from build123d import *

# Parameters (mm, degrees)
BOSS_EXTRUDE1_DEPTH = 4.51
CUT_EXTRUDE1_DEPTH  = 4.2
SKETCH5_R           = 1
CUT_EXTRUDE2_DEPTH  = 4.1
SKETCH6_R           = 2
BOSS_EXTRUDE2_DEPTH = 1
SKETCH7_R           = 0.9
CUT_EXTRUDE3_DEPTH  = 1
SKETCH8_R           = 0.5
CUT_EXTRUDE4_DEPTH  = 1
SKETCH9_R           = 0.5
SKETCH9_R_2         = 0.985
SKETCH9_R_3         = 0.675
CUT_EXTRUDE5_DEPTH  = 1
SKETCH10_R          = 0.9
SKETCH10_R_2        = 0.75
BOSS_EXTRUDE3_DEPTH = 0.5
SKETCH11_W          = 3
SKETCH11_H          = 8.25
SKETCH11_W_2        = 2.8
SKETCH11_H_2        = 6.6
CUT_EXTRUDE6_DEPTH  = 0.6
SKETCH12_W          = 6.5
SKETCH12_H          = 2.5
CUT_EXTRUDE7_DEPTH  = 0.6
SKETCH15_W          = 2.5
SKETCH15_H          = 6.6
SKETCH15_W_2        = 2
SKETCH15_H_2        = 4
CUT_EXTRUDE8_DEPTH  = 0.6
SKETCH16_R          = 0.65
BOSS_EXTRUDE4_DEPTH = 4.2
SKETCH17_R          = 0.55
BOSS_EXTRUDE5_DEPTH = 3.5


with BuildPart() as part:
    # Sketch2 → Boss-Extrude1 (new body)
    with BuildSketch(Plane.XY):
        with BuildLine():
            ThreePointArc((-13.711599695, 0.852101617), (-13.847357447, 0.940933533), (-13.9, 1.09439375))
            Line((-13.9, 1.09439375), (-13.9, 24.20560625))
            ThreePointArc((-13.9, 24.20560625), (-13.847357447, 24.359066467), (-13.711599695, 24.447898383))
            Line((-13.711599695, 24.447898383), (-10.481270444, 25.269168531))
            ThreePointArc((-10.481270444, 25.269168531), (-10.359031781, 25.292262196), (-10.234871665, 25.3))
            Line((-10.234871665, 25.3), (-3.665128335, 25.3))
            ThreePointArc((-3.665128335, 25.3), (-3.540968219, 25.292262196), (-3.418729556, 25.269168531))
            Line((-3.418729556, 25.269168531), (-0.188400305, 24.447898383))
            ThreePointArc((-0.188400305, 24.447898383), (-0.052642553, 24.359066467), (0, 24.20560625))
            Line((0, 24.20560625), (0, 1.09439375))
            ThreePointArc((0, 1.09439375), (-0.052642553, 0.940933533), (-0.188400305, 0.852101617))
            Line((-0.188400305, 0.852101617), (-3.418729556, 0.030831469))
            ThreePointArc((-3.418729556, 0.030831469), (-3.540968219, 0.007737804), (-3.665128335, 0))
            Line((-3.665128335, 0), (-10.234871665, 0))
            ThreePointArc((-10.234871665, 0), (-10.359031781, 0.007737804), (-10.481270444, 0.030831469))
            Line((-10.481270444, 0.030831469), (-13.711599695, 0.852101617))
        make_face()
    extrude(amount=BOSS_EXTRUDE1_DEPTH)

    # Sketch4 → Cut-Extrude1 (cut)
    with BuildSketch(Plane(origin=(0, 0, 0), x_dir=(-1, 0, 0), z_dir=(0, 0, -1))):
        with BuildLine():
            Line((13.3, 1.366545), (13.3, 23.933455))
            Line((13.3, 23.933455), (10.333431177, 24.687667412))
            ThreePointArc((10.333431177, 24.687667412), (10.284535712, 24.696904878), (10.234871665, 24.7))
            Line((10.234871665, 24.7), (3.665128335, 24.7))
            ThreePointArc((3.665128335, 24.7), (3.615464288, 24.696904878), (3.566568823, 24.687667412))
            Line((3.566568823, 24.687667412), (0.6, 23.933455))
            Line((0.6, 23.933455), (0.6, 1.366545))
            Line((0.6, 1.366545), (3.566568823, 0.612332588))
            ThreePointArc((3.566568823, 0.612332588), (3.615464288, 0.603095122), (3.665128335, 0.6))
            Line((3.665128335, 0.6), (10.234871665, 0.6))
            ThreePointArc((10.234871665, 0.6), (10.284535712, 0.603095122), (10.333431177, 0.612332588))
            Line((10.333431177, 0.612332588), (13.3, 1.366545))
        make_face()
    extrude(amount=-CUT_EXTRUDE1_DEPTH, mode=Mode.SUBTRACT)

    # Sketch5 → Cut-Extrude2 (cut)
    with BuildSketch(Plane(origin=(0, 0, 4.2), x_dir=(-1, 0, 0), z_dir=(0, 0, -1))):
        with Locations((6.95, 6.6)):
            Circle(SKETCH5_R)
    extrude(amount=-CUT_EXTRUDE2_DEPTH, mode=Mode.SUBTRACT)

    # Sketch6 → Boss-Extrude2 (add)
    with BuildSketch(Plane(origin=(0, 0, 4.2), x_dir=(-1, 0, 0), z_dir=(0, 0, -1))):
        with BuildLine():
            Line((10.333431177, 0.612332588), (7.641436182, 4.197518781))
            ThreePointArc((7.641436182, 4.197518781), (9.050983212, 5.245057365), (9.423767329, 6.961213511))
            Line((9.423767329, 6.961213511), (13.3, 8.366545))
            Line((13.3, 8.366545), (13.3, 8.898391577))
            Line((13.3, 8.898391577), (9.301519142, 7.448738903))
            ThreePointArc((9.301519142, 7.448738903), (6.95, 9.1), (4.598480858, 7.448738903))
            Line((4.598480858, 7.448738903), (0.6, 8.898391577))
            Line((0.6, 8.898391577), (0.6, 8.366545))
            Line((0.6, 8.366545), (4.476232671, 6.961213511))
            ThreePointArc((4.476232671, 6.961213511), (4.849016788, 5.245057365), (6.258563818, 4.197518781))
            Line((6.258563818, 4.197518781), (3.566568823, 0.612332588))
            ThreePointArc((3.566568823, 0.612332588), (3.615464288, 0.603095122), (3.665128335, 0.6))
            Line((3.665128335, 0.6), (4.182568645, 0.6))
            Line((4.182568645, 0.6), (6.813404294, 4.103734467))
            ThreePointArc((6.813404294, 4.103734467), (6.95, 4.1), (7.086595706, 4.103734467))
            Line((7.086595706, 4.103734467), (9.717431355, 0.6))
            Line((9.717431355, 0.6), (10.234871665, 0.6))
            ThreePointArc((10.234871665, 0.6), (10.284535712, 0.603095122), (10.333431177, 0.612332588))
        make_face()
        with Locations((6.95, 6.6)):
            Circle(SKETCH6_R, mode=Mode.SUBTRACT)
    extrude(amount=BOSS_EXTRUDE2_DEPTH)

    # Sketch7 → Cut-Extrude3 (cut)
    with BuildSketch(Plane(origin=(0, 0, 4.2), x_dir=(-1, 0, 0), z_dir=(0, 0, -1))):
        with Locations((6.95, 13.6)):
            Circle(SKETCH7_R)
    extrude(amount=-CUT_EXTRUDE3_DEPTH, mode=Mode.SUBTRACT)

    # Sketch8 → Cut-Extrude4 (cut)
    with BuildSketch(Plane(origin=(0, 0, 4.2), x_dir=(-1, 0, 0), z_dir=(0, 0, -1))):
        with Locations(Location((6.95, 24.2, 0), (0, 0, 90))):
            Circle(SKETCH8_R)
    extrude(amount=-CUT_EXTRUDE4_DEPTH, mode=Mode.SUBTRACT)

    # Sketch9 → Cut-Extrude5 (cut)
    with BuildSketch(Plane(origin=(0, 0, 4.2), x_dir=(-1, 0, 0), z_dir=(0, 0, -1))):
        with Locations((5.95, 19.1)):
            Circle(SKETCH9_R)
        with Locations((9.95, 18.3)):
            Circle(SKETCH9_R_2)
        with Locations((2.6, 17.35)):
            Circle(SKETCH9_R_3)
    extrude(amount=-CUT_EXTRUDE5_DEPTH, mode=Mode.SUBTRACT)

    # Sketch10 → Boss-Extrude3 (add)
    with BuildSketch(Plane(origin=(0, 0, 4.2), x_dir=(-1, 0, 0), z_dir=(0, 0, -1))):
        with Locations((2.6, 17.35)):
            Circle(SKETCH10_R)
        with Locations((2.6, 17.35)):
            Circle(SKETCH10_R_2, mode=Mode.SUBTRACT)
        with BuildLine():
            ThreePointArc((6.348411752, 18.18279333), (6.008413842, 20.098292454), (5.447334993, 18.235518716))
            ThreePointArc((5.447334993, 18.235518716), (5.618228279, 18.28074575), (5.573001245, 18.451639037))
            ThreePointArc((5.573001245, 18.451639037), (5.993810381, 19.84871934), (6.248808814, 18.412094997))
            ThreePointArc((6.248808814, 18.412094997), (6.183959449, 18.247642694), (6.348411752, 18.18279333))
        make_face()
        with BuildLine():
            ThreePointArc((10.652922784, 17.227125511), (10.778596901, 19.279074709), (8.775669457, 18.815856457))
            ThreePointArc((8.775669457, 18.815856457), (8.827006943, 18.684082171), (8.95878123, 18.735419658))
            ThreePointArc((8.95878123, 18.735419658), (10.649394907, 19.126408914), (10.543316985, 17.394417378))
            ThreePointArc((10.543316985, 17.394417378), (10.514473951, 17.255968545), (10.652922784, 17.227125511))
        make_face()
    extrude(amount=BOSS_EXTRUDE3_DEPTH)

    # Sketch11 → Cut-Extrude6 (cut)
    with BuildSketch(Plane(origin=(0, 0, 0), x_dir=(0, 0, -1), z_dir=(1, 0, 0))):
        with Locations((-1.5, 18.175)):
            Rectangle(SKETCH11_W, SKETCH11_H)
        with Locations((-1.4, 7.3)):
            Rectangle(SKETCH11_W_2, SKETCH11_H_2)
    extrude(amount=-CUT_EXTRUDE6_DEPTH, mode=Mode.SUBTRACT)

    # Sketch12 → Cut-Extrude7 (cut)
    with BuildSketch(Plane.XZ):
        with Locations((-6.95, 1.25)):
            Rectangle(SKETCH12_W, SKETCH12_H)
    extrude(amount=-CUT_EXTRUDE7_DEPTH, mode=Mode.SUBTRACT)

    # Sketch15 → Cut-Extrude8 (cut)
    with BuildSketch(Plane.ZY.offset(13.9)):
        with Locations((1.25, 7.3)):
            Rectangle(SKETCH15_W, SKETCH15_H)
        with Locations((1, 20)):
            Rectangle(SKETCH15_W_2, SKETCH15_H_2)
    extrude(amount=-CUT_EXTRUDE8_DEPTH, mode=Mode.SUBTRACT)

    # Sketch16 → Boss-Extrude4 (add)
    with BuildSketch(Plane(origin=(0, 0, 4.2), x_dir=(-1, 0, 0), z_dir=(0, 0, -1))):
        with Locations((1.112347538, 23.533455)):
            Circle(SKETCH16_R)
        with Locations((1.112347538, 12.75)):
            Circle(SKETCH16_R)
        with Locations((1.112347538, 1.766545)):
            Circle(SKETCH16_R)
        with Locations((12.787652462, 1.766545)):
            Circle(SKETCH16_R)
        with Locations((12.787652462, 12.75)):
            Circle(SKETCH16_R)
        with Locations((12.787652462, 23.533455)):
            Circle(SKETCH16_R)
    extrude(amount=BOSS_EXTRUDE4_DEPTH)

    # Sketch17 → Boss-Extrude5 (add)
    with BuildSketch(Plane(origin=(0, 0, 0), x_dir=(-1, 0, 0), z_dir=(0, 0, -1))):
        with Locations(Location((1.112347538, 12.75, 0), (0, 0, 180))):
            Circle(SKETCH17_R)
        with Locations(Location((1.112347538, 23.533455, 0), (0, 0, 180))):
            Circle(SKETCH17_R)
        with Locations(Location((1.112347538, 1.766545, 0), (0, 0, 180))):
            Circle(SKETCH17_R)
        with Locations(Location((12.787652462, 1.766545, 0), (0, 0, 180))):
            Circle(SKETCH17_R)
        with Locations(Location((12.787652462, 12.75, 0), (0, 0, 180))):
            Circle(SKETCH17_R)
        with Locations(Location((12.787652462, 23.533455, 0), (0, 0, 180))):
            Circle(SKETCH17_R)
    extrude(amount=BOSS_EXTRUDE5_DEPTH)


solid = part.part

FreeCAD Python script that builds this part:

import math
import FreeCAD as App
import Part
import Sketcher

V = App.Vector
Q = App.Units.Quantity


def add_polygon(sketch, points):
    """Adds a closed chain of lines whose ends are joined by coincident constraints."""
    first, n = sketch.GeometryCount, len(points)
    for a, b in zip(points, points[1:] + points[:1]):
        sketch.addGeometry(Part.LineSegment(App.Vector(*a, 0), App.Vector(*b, 0)), False)
    for i in range(n):
        sketch.addConstraint(Sketcher.Constraint("Coincident", first + i, 2, first + (i + 1) % n, 1))

doc = App.newDocument("Part")
params = doc.addObject("Spreadsheet::Sheet", "Params")
for row, (alias, value) in enumerate([
    ("sketch1_radius", "1 mm"),
    ("sketch1_radius2", "0.25 mm"),
    ("pad1_length", "4.51 mm"),
    ("sketch2_radius", "0.4 mm"),
    ("pocket1_length", "4.2 mm"),
    ("sketch3_diameter", "2 mm"),
    ("pocket2_length", "4.1 mm"),
    ("sketch4_diameter", "4 mm"),
    ("sketch4_radius", "2.5 mm"),
    ("sketch4_radius2", "0.4 mm"),
    ("pad2_length", "1 mm"),
    ("sketch5_diameter", "1.8 mm"),
    ("pocket3_length", "1 mm"),
    ("sketch6_diameter", "1 mm"),
    ("pocket4_length", "1 mm"),
    ("sketch7_diameter", "1 mm"),
    ("sketch7_diameter2", "1.97 mm"),
    ("sketch7_diameter3", "1.35 mm"),
    ("pocket5_length", "1 mm"),
    ("sketch8_radius", "1 mm"),
    ("sketch8_diameter", "1.8 mm"),
    ("sketch8_diameter2", "1.5 mm"),
    ("sketch8_radius2", "0.1 mm"),
    ("pad3_length", "0.5 mm"),
    ("sketch9_height", "3 mm"),
    ("sketch9_width", "6.6 mm"),
    ("sketch9_height2", "2.8 mm"),
    ("sketch9_width2", "8.25 mm"),
    ("pocket6_length", "0.6 mm"),
    ("sketch10_width", "6.5 mm"),
    ("sketch10_height", "2.5 mm"),
    ("pocket7_length", "0.6 mm"),
    ("sketch11_width", "4 mm"),
    ("sketch11_height", "2 mm"),
    ("sketch11_width2", "6.6 mm"),
    ("sketch11_height2", "2.5 mm"),
    ("pocket8_length", "0.6 mm"),
    ("sketch12_diameter", "1.3 mm"),
    ("pad4_length", "4.2 mm"),
    ("sketch13_diameter", "1.1 mm"),
    ("pad5_length", "3.5 mm"),
], start=1):
    params.set(f"A{row}", alias)
    params.set(f"B{row}", "=" + value)
    params.setAlias(f"B{row}", alias)

body = doc.addObject("PartDesign::Body", "Body")

# Sketch on XY plane
sketch1 = body.newObject("Sketcher::SketchObject", "Sketch")
sketch1.AttachmentSupport = (doc.getObject("XY_Plane"), [""])
sketch1.MapMode = "FlatFace"
sketch1.addGeometry([
    Part.ArcOfCircle(Part.Circle(V(-13.65, 1.09, 0), V(0, 0, 1), 0.25), math.radians(180), math.radians(256)),  # 0
    Part.LineSegment(V(-13.71, 0.85, 0), V(-10.48, 0.03, 0)),  # 1
    Part.ArcOfCircle(Part.Circle(V(-10.23, 1, 0), V(0, 0, 1), 1), math.radians(-104.26), math.radians(-90)),  # 2
    Part.LineSegment(V(-10.23, 0, 0), V(-3.67, 0, 0)),  # 3
    Part.ArcOfCircle(Part.Circle(V(-3.67, 1, 0), V(0, 0, 1), 1), math.radians(-90), math.radians(-75.74)),  # 4
    Part.LineSegment(V(-3.42, 0.03, 0), V(-0.19, 0.85, 0)),  # 5
    Part.ArcOfCircle(Part.Circle(V(-0.25, 1.09, 0), V(0, 0, 1), 0.25), math.radians(-76), math.radians(0)),  # 6
    Part.LineSegment(V(0, 1.09, 0), V(0, 24.21, 0)),  # 7
    Part.ArcOfCircle(Part.Circle(V(-0.25, 24.21, 0), V(0, 0, 1), 0.25), math.radians(0), math.radians(76)),  # 8
    Part.LineSegment(V(-0.19, 24.45, 0), V(-3.42, 25.27, 0)),  # 9
    Part.ArcOfCircle(Part.Circle(V(-3.67, 24.3, 0), V(0, 0, 1), 1), math.radians(75.74), math.radians(90)),  # 10
    Part.LineSegment(V(-3.67, 25.3, 0), V(-10.23, 25.3, 0)),  # 11
    Part.ArcOfCircle(Part.Circle(V(-10.23, 24.3, 0), V(0, 0, 1), 1), math.radians(90), math.radians(104.26)),  # 12
    Part.LineSegment(V(-10.48, 25.27, 0), V(-13.71, 24.45, 0)),  # 13
    Part.ArcOfCircle(Part.Circle(V(-13.65, 24.21, 0), V(0, 0, 1), 0.25), math.radians(104), math.radians(180)),  # 14
    Part.LineSegment(V(-13.9, 24.21, 0), V(-13.9, 1.09, 0)),  # 15
], False)
sketch1.addConstraint([
    Sketcher.Constraint("Tangent", 0, 2, 1, 1),
    Sketcher.Constraint("Tangent", 1, 2, 2, 1),
    Sketcher.Constraint("Tangent", 2, 2, 3, 1),
    Sketcher.Constraint("Tangent", 3, 2, 4, 1),
    Sketcher.Constraint("Tangent", 4, 2, 5, 1),
    Sketcher.Constraint("Tangent", 5, 2, 6, 1),
    Sketcher.Constraint("Tangent", 6, 2, 7, 1),
    Sketcher.Constraint("Tangent", 7, 2, 8, 1),
    Sketcher.Constraint("Tangent", 8, 2, 9, 1),
    Sketcher.Constraint("Tangent", 9, 2, 10, 1),
    Sketcher.Constraint("Tangent", 10, 2, 11, 1),
    Sketcher.Constraint("Tangent", 11, 2, 12, 1),
    Sketcher.Constraint("Tangent", 12, 2, 13, 1),
    Sketcher.Constraint("Tangent", 13, 2, 14, 1),
    Sketcher.Constraint("Tangent", 14, 2, 15, 1),
    Sketcher.Constraint("Tangent", 15, 2, 0, 1),
    Sketcher.Constraint("Horizontal", 3),
    Sketcher.Constraint("Vertical", 7),
    Sketcher.Constraint("Horizontal", 11),
    Sketcher.Constraint("Vertical", 15),
    Sketcher.Constraint("Equal", 2, 4),
    Sketcher.Constraint("Equal", 0, 6),
    Sketcher.Constraint("Equal", 6, 8),
    Sketcher.Constraint("Equal", 4, 10),
    Sketcher.Constraint("Equal", 10, 12),
    Sketcher.Constraint("Equal", 8, 14),
    Sketcher.Constraint("PointOnObject", 2, 2, -1),
    Sketcher.Constraint("PointOnObject", 6, 2, -2),
    Sketcher.Constraint("Parallel", 1, 9),
    Sketcher.Constraint("Parallel", 5, 13),
    Sketcher.Constraint("Horizontal", 0, 3, 6, 3),
    Sketcher.Constraint("Horizontal", 8, 3, 14, 3),
    Sketcher.Constraint("Horizontal", 1, 2, 4, 2),
    Sketcher.Constraint("Vertical", 4, 3, 10, 3),
    Sketcher.Constraint("Radius", 2, Q("1 mm")),
    Sketcher.Constraint("Radius", 0, Q("0.25 mm")),
    Sketcher.Constraint("DistanceY", -1, 1, 10, 3, Q("24.3 mm")),
    Sketcher.Constraint("DistanceX", 14, 2, -1, 1, Q("13.9 mm")),
    Sketcher.Constraint("DistanceX", 0, 2, -1, 1, Q("13.7116 mm")),
    Sketcher.Constraint("DistanceY", -1, 1, 0, 2, Q("0.852102 mm")),
])
sketch1.setExpression("Constraints[34]", "Params.sketch1_radius")
sketch1.setExpression("Constraints[35]", "Params.sketch1_radius2")
pad1 = body.newObject("PartDesign::Pad", "Pad")
pad1.Profile = sketch1
pad1.setExpression("Length", "Params.pad1_length")

# Sketch on XY plane
sketch2 = body.newObject("Sketcher::SketchObject", "Sketch001")
sketch2.AttachmentSupport = (doc.getObject("XY_Plane"), [""])
sketch2.MapMode = "FlatFace"
sketch2.addGeometry([
    Part.LineSegment(V(-13.3, 1.37, 0), V(-13.3, 23.93, 0)),  # 0
    Part.LineSegment(V(-13.3, 23.93, 0), V(-10.33, 24.69, 0)),  # 1
    Part.ArcOfCircle(Part.Circle(V(-10.23, 24.3, 0), V(0, 0, 1), 0.4), math.radians(90), math.radians(104.26)),  # 2
    Part.LineSegment(V(-10.23, 24.7, 0), V(-3.67, 24.7, 0)),  # 3
    Part.ArcOfCircle(Part.Circle(V(-3.67, 24.3, 0), V(0, 0, 1), 0.4), math.radians(75.74), math.radians(90)),  # 4
    Part.LineSegment(V(-3.57, 24.69, 0), V(-0.6, 23.93, 0)),  # 5
    Part.LineSegment(V(-0.6, 23.93, 0), V(-0.6, 1.37, 0)),  # 6
    Part.LineSegment(V(-0.6, 1.37, 0), V(-3.57, 0.61, 0)),  # 7
    Part.ArcOfCircle(Part.Circle(V(-3.67, 1, 0), V(0, 0, 1), 0.4), math.radians(-90), math.radians(-75.74)),  # 8
    Part.LineSegment(V(-3.67, 0.6, 0), V(-10.23, 0.6, 0)),  # 9
    Part.ArcOfCircle(Part.Circle(V(-10.23, 1, 0), V(0, 0, 1), 0.4), math.radians(-104.26), math.radians(-90)),  # 10
    Part.LineSegment(V(-10.33, 0.61, 0), V(-13.3, 1.37, 0)),  # 11
], False)
sketch2.addConstraint([
    Sketcher.Constraint("Coincident", 0, 2, 1, 1),
    Sketcher.Constraint("Tangent", 1, 2, 2, 2),
    Sketcher.Constraint("Tangent", 2, 1, 3, 1),
    Sketcher.Constraint("Tangent", 3, 2, 4, 2),
    Sketcher.Constraint("Tangent", 4, 1, 5, 1),
    Sketcher.Constraint("Coincident", 5, 2, 6, 1),
    Sketcher.Constraint("Coincident", 6, 2, 7, 1),
    Sketcher.Constraint("Tangent", 7, 2, 8, 2),
    Sketcher.Constraint("Tangent", 8, 1, 9, 1),
    Sketcher.Constraint("Tangent", 9, 2, 10, 2),
    Sketcher.Constraint("Tangent", 10, 1, 11, 1),
    Sketcher.Constraint("Coincident", 11, 2, 0, 1),
    Sketcher.Constraint("Vertical", 0),
    Sketcher.Constraint("Horizontal", 3),
    Sketcher.Constraint("Vertical", 6),
    Sketcher.Constraint("Horizontal", 9),
    Sketcher.Constraint("Equal", 2, 4),
    Sketcher.Constraint("Equal", 4, 8),
    Sketcher.Constraint("Equal", 8, 10),
    Sketcher.Constraint("Parallel", 1, 7),
    Sketcher.Constraint("Parallel", 5, 11),
    Sketcher.Constraint("Horizontal", 1, 2, 4, 1),
    Sketcher.Constraint("Horizontal", 0, 2, 5, 2),
    Sketcher.Constraint("Horizontal", 6, 2, 11, 2),
    Sketcher.Constraint("Vertical", 4, 3, 8, 3),
    Sketcher.Constraint("Radius", 2, Q("0.4 mm")),
    Sketcher.Constraint("DistanceY", -1, 1, 8, 3, Q("1 mm")),
    Sketcher.Constraint("DistanceY", -1, 1, 2, 3, Q("24.3 mm")),
    Sketcher.Constraint("DistanceX", 0, 2, -1, 1, Q("13.3 mm")),
    Sketcher.Constraint("DistanceX", 5, 2, -1, 1, Q("0.6 mm")),
    Sketcher.Constraint("DistanceY", 0, 1, 0, 2, Q("22.56691 mm")),
    Sketcher.Constraint("DistanceX", 3, 1, 3, 2, Q("6.569743 mm")),
])
sketch2.setExpression("Constraints[25]", "Params.sketch2_radius")
pocket1 = body.newObject("PartDesign::Pocket", "Pocket")
pocket1.Profile = sketch2
pocket1.setExpression("Length", "Params.pocket1_length")
pocket1.Reversed = True

# Sketch on XY plane
sketch3 = body.newObject("Sketcher::SketchObject", "Sketch002")
sketch3.AttachmentSupport = (doc.getObject("XY_Plane"), [""])
sketch3.MapMode = "FlatFace"
sketch3.AttachmentOffset = App.Placement(V(0, 0, 4.2), App.Rotation())
sketch3.addGeometry(Part.Circle(V(-7, 6.6, 0), V(0, 0, 1), 1), False)
sketch3.addConstraint([
    Sketcher.Constraint("Diameter", 0, Q("2 mm")),
    Sketcher.Constraint("DistanceY", -1, 1, 0, 3, Q("6.6 mm")),
    Sketcher.Constraint("DistanceX", 0, 3, -1, 1, Q("6.95 mm")),
])
sketch3.setExpression("Constraints[0]", "Params.sketch3_diameter")
pocket2 = body.newObject("PartDesign::Pocket", "Pocket001")
pocket2.Profile = sketch3
pocket2.setExpression("Length", "Params.pocket2_length")
pocket2.Reversed = True

# Sketch on XY plane
sketch4 = body.newObject("Sketcher::SketchObject", "Sketch003")
sketch4.AttachmentSupport = (doc.getObject("XY_Plane"), [""])
sketch4.MapMode = "FlatFace"
sketch4.AttachmentOffset = App.Placement(V(0, 0, 4.2), App.Rotation())
sketch4.addGeometry([
    Part.LineSegment(V(-10.33, 0.61, 0), V(-7.64, 4.2, 0)),  # 0
    Part.ArcOfCircle(Part.Circle(V(-6.95, 6.6, 0), V(0, 0, 1), 2.5), math.radians(172), math.radians(254)),  # 1
    Part.LineSegment(V(-9.42, 6.96, 0), V(-13.3, 8.37, 0)),  # 2
    Part.LineSegment(V(-13.3, 8.37, 0), V(-13.3, 8.9, 0)),  # 3
    Part.LineSegment(V(-13.3, 8.9, 0), V(-9.3, 7.45, 0)),  # 4
    Part.ArcOfCircle(Part.Circle(V(-6.95, 6.6, 0), V(0, 0, 1), 2.5), math.radians(20), math.radians(160)),  # 5
    Part.LineSegment(V(-4.6, 7.45, 0), V(-0.6, 8.9, 0)),  # 6
    Part.LineSegment(V(-0.6, 8.9, 0), V(-0.6, 8.37, 0)),  # 7
    Part.LineSegment(V(-0.6, 8.37, 0), V(-4.48, 6.96, 0)),  # 8
    Part.ArcOfCircle(Part.Circle(V(-6.95, 6.6, 0), V(0, 0, 1), 2.5), math.radians(-74), math.radians(8)),  # 9
    Part.LineSegment(V(-6.26, 4.2, 0), V(-3.57, 0.61, 0)),  # 10
    Part.ArcOfCircle(Part.Circle(V(-3.67, 1, 0), V(0, 0, 1), 0.4), math.radians(-90), math.radians(-75.74)),  # 11
    Part.LineSegment(V(-3.67, 0.6, 0), V(-4.18, 0.6, 0)),  # 12
    Part.LineSegment(V(-4.18, 0.6, 0), V(-6.81, 4.1, 0)),  # 13
    Part.ArcOfCircle(Part.Circle(V(-6.95, 6.6, 0), V(0, 0, 1), 2.5), math.radians(-93.13), math.radians(-86.87)),  # 14
    Part.LineSegment(V(-7.09, 4.1, 0), V(-9.72, 0.6, 0)),  # 15
    Part.LineSegment(V(-9.72, 0.6, 0), V(-10.23, 0.6, 0)),  # 16
    Part.ArcOfCircle(Part.Circle(V(-10.23, 1, 0), V(0, 0, 1), 0.4), math.radians(-104.26), math.radians(-90)),  # 17
    Part.Circle(V(-6.95, 6.6, 0), V(0, 0, 1), 2),  # 18
], False)
sketch4.addConstraint([
    Sketcher.Constraint("Coincident", 0, 2, 1, 2),
    Sketcher.Constraint("Coincident", 1, 1, 2, 1),
    Sketcher.Constraint("Coincident", 2, 2, 3, 1),
    Sketcher.Constraint("Coincident", 3, 2, 4, 1),
    Sketcher.Constraint("Coincident", 4, 2, 5, 2),
    Sketcher.Constraint("Coincident", 5, 1, 6, 1),
    Sketcher.Constraint("Coincident", 6, 2, 7, 1),
    Sketcher.Constraint("Coincident", 7, 2, 8, 1),
    Sketcher.Constraint("Coincident", 8, 2, 9, 2),
    Sketcher.Constraint("Coincident", 9, 1, 10, 1),
    Sketcher.Constraint("Coincident", 10, 2, 11, 2),
    Sketcher.Constraint("Tangent", 11, 1, 12, 1),
    Sketcher.Constraint("Coincident", 12, 2, 13, 1),
    Sketcher.Constraint("Coincident", 13, 2, 14, 2),
    Sketcher.Constraint("Coincident", 14, 1, 15, 1),
    Sketcher.Constraint("Coincident", 15, 2, 16, 1),
    Sketcher.Constraint("Tangent", 16, 2, 17, 2),
    Sketcher.Constraint("Coincident", 17, 1, 0, 1),
    Sketcher.Constraint("Vertical", 3),
    Sketcher.Constraint("Vertical", 7),
    Sketcher.Constraint("Horizontal", 12),
    Sketcher.Constraint("Horizontal", 16),
    Sketcher.Constraint("Coincident", 5, 3, 1, 3),
    Sketcher.Constraint("Coincident", 9, 3, 1, 3),
    Sketcher.Constraint("Coincident", 14, 3, 1, 3),
    Sketcher.Constraint("Coincident", 18, 3, 1, 3),
    Sketcher.Constraint("Equal", 1, 5),
    Sketcher.Constraint("Equal", 5, 9),
    Sketcher.Constraint("Equal", 9, 14),
    Sketcher.Constraint("Equal", 11, 17),
    Sketcher.Constraint("Parallel", 2, 4),
    Sketcher.Constraint("Parallel", 6, 8),
    Sketcher.Constraint("Parallel", 10, 13),
    Sketcher.Constraint("Parallel", 0, 15),
    Sketcher.Constraint("Horizontal", 11, 3, 17, 3),
    Sketcher.Constraint("Horizontal", 4, 2, 5, 1),
    Sketcher.Constraint("Horizontal", 3, 2, 6, 2),
    Sketcher.Constraint("Horizontal", 2, 2, 7, 2),
    Sketcher.Constraint("Horizontal", 1, 1, 8, 2),
    Sketcher.Constraint("Horizontal", 0, 2, 9, 1),
    Sketcher.Constraint("Horizontal", 13, 2, 14, 1),
    Sketcher.Constraint("Horizontal", 10, 2, 17, 1),
    Sketcher.Constraint("Equal", 12, 16),
    Sketcher.Constraint("Diameter", 18, Q("4 mm")),
    Sketcher.Constraint("Radius", 1, Q("2.5 mm")),
    Sketcher.Constraint("Radius", 11, Q("0.4 mm")),
    Sketcher.Constraint("DistanceY", -1, 1, 11, 3, Q("1 mm")),
    Sketcher.Constraint("DistanceY", -1, 1, 1, 3, Q("6.6 mm")),
    Sketcher.Constraint("DistanceX", 2, 2, -1, 1, Q("13.3 mm")),
    Sketcher.Constraint("DistanceX", 6, 2, -1, 1, Q("0.6 mm")),
    Sketcher.Constraint("DistanceX", 12, 2, 10, 2, Q("0.616 mm")),
    Sketcher.Constraint("DistanceX", 12, 2, 12, 1, Q("0.51744 mm")),
    Sketcher.Constraint("DistanceY", 17, 1, 14, 1, Q("3.491402 mm")),
    Sketcher.Constraint("Distance", 13, Q("4.38149 mm")),
    Sketcher.Constraint("DistanceY", 3, 1, 3, 2, Q("0.531847 mm")),
    Sketcher.Constraint("DistanceY", -1, 1, 3, 2, Q("8.898392 mm")),
    Sketcher.Constraint("DistanceX", 4, 2, -1, 1, Q("9.301519 mm")),
])
sketch4.setExpression("Constraints[43]", "Params.sketch4_diameter")
sketch4.setExpression("Constraints[44]", "Params.sketch4_radius")
sketch4.setExpression("Constraints[45]", "Params.sketch4_radius2")
pad2 = body.newObject("PartDesign::Pad", "Pad001")
pad2.Profile = sketch4
pad2.setExpression("Length", "Params.pad2_length")
pad2.Reversed = True

# Sketch on XY plane
sketch5 = body.newObject("Sketcher::SketchObject", "Sketch004")
sketch5.AttachmentSupport = (doc.getObject("XY_Plane"), [""])
sketch5.MapMode = "FlatFace"
sketch5.AttachmentOffset = App.Placement(V(0, 0, 4.2), App.Rotation())
sketch5.addGeometry(Part.Circle(V(-7, 13.6, 0), V(0, 0, 1), 0.9), False)
sketch5.addConstraint([
    Sketcher.Constraint("Diameter", 0, Q("1.8 mm")),
    Sketcher.Constraint("DistanceY", -1, 1, 0, 3, Q("13.6 mm")),
    Sketcher.Constraint("DistanceX", 0, 3, -1, 1, Q("6.95 mm")),
])
sketch5.setExpression("Constraints[0]", "Params.sketch5_diameter")
pocket3 = body.newObject("PartDesign::Pocket", "Pocket002")
pocket3.Profile = sketch5
pocket3.setExpression("Length", "Params.pocket3_length")
pocket3.Reversed = True

# Sketch on XY plane
sketch6 = body.newObject("Sketcher::SketchObject", "Sketch005")
sketch6.AttachmentSupport = (doc.getObject("XY_Plane"), [""])
sketch6.MapMode = "FlatFace"
sketch6.AttachmentOffset = App.Placement(V(0, 0, 4.2), App.Rotation())
sketch6.addGeometry(Part.Circle(V(-7, 24.2, 0), V(0, 0, 1), 0.5), False)
sketch6.addConstraint([
    Sketcher.Constraint("Diameter", 0, Q("1 mm")),
    Sketcher.Constraint("DistanceY", -1, 1, 0, 3, Q("24.2 mm")),
    Sketcher.Constraint("DistanceX", 0, 3, -1, 1, Q("6.95 mm")),
])
sketch6.setExpression("Constraints[0]", "Params.sketch6_diameter")
pocket4 = body.newObject("PartDesign::Pocket", "Pocket003")
pocket4.Profile = sketch6
pocket4.setExpression("Length", "Params.pocket4_length")
pocket4.Reversed = True

# Sketch on XY plane
sketch7 = body.newObject("Sketcher::SketchObject", "Sketch006")
sketch7.AttachmentSupport = (doc.getObject("XY_Plane"), [""])
sketch7.MapMode = "FlatFace"
sketch7.AttachmentOffset = App.Placement(V(0, 0, 4.2), App.Rotation())
sketch7.addGeometry([
    Part.Circle(V(-6, 19.1, 0), V(0, 0, 1), 0.5),
    Part.Circle(V(-9.9, 18.3, 0), V(0, 0, 1), 1),
    Part.Circle(V(-2.6, 17.4, 0), V(0, 0, 1), 0.7),
], False)
sketch7.addConstraint([
    Sketcher.Constraint("Diameter", 0, Q("1 mm")),
    Sketcher.Constraint("Diameter", 1, Q("1.97 mm")),
    Sketcher.Constraint("Diameter", 2, Q("1.35 mm")),
    Sketcher.Constraint("DistanceX", 1, 3, 0, 3, Q("4 mm")),
    Sketcher.Constraint("DistanceY", -1, 1, 0, 3, Q("19.1 mm")),
    Sketcher.Constraint("DistanceY", -1, 1, 1, 3, Q("18.3 mm")),
    Sketcher.Constraint("DistanceX", 2, 3, -1, 1, Q("2.6 mm")),
    Sketcher.Constraint("DistanceX", 0, 3, -1, 1, Q("5.95 mm")),
    Sketcher.Constraint("DistanceY", -1, 1, 2, 3, Q("17.35 mm")),
])
sketch7.setExpression("Constraints[0]", "Params.sketch7_diameter")
sketch7.setExpression("Constraints[1]", "Params.sketch7_diameter2")
sketch7.setExpression("Constraints[2]", "Params.sketch7_diameter3")
pocket5 = body.newObject("PartDesign::Pocket", "Pocket004")
pocket5.Profile = sketch7
pocket5.setExpression("Length", "Params.pocket5_length")
pocket5.Reversed = True

# Sketch on XY plane
sketch8 = body.newObject("Sketcher::SketchObject", "Sketch007")
sketch8.AttachmentSupport = (doc.getObject("XY_Plane"), [""])
sketch8.MapMode = "FlatFace"
sketch8.AttachmentOffset = App.Placement(V(0, 0, 4.2), App.Rotation())
sketch8.addGeometry([
    Part.Circle(V(-2.6, 17.35, 0), V(0, 0, 1), 0.9),  # 0
    Part.Circle(V(-2.6, 17.35, 0), V(0, 0, 1), 0.75),  # 1
    Part.ArcOfCircle(Part.Circle(V(-5.95, 19.1, 0), V(0, 0, 1), 1), math.radians(-60), math.radians(247)),  # 2
    Part.ArcOfCircle(Part.Circle(V(-5.51, 18.34, 0), V(0, 0, 1), 0.12), math.radians(120), math.radians(300)),  # 3
    Part.ArcOfCircle(Part.Circle(V(-5.95, 19.1, 0), V(0, 0, 1), 0.75), math.radians(-60), math.radians(247)),  # 4
    Part.ArcOfCircle(Part.Circle(V(-6.3, 18.3, 0), V(0, 0, 1), 0.12), math.radians(-113), math.radians(67)),  # 5
    Part.ArcOfCircle(Part.Circle(V(-9.95, 18.3, 0), V(0, 0, 1), 1.28), math.radians(24), math.radians(237)),  # 6
    Part.ArcOfCircle(Part.Circle(V(-8.87, 18.78, 0), V(0, 0, 1), 0.1), math.radians(-156), math.radians(24)),  # 7
    Part.ArcOfCircle(Part.Circle(V(-9.95, 18.3, 0), V(0, 0, 1), 1.08), math.radians(24), math.radians(237)),  # 8
    Part.ArcOfCircle(Part.Circle(V(-10.6, 17.31, 0), V(0, 0, 1), 0.1), math.radians(-123), math.radians(57)),  # 9
], False)
sketch8.addConstraint([
    Sketcher.Constraint("Tangent", 2, 1, 3, 2),
    Sketcher.Constraint("Tangent", 3, 1, 4, 1),
    Sketcher.Constraint("Tangent", 4, 2, 5, 2),
    Sketcher.Constraint("Tangent", 5, 1, 2, 2),
    Sketcher.Constraint("Tangent", 6, 1, 7, 2),
    Sketcher.Constraint("Tangent", 7, 1, 8, 1),
    Sketcher.Constraint("Tangent", 8, 2, 9, 2),
    Sketcher.Constraint("Tangent", 9, 1, 6, 2),
    Sketcher.Constraint("Coincident", 1, 3, 0, 3),
    Sketcher.Constraint("Coincident", 4, 3, 2, 3),
    Sketcher.Constraint("Coincident", 8, 3, 6, 3),
    Sketcher.Constraint("Equal", 1, 4),
    Sketcher.Constraint("Radius", 2, Q("1 mm")),
    Sketcher.Constraint("Diameter", 0, Q("1.8 mm")),
    Sketcher.Constraint("Diameter", 1, Q("1.5 mm")),
    Sketcher.Constraint("Radius", 7, Q("0.1 mm")),
    Sketcher.Constraint("DistanceX", 6, 3, 4, 3, Q("4 mm")),
    Sketcher.Constraint("DistanceX", 0, 3, -1, 1, Q("2.6 mm")),
    Sketcher.Constraint("DistanceY", -1, 1, 2, 3, Q("19.1 mm")),
    Sketcher.Constraint("DistanceY", -1, 1, 6, 3, Q("18.3 mm")),
    Sketcher.Constraint("DistanceY", -1, 1, 0, 3, Q("17.35 mm")),
    Sketcher.Constraint("DistanceX", 2, 3, -1, 1, Q("5.95 mm")),
    Sketcher.Constraint("DistanceX", 3, 1, -1, 1, Q("5.573001 mm")),
    Sketcher.Constraint("Radius", 6, Q("1.282638 mm")),
    Sketcher.Constraint("DistanceX", 5, 3, 4, 2, Q("0.049801 mm")),
    Sketcher.Constraint("DistanceY", -1, 1, 7, 3, Q("18.775638 mm")),
    Sketcher.Constraint("DistanceX", 9, 3, -1, 1, Q("10.59812 mm")),
])
sketch8.setExpression("Constraints[12]", "Params.sketch8_radius")
sketch8.setExpression("Constraints[13]", "Params.sketch8_diameter")
sketch8.setExpression("Constraints[14]", "Params.sketch8_diameter2")
sketch8.setExpression("Constraints[15]", "Params.sketch8_radius2")
pad3 = body.newObject("PartDesign::Pad", "Pad002")
pad3.Profile = sketch8
pad3.setExpression("Length", "Params.pad3_length")
pad3.Reversed = True

# Sketch on YZ plane
sketch9 = body.newObject("Sketcher::SketchObject", "Sketch008")
sketch9.AttachmentSupport = (doc.getObject("YZ_Plane"), [""])
sketch9.MapMode = "FlatFace"
add_polygon(sketch9, [(22.3, 3), (14.1, 3), (14.1, 0), (22.3, 0)])  # lines 0-3
add_polygon(sketch9, [(10.6, 2.8), (4, 2.8), (4, 0), (10.6, 0)])  # lines 4-7
sketch9.addConstraint([
    Sketcher.Constraint("Horizontal", 0),
    Sketcher.Constraint("Vertical", 1),
    Sketcher.Constraint("Horizontal", 2),
    Sketcher.Constraint("Vertical", 3),
    Sketcher.Constraint("Horizontal", 4),
    Sketcher.Constraint("Vertical", 5),
    Sketcher.Constraint("Horizontal", 6),
    Sketcher.Constraint("Vertical", 7),
    Sketcher.Constraint("PointOnObject", 1, 2, -1),
    Sketcher.Constraint("PointOnObject", 5, 2, -1),
    Sketcher.Constraint("DistanceY", 1, 2, 1, 1, Q("3 mm")),
    Sketcher.Constraint("DistanceX", 4, 2, 4, 1, Q("6.6 mm")),
    Sketcher.Constraint("DistanceY", 5, 2, 5, 1, Q("2.8 mm")),
    Sketcher.Constraint("DistanceX", -1, 1, 4, 2, Q("4 mm")),
    Sketcher.Constraint("DistanceX", 0, 2, 0, 1, Q("8.25 mm")),
    Sketcher.Constraint("DistanceX", -1, 1, 2, 2, Q("22.3 mm")),
])
sketch9.setExpression("Constraints[18]", "Params.sketch9_height")
sketch9.setExpression("Constraints[19]", "Params.sketch9_width")
sketch9.setExpression("Constraints[20]", "Params.sketch9_height2")
sketch9.setExpression("Constraints[22]", "Params.sketch9_width2")
pocket6 = body.newObject("PartDesign::Pocket", "Pocket005")
pocket6.Profile = sketch9
pocket6.setExpression("Length", "Params.pocket6_length")

# Sketch on XZ plane
sketch10 = body.newObject("Sketcher::SketchObject", "Sketch009")
sketch10.AttachmentSupport = (doc.getObject("XZ_Plane"), [""])
sketch10.MapMode = "FlatFace"
add_polygon(sketch10, [(-10.2, 2.5), (-10.2, 0), (-3.7, 0), (-3.7, 2.5)])  # lines 0-3
sketch10.addConstraint([
    Sketcher.Constraint("Vertical", 0),
    Sketcher.Constraint("Horizontal", 1),
    Sketcher.Constraint("Vertical", 2),
    Sketcher.Constraint("Horizontal", 3),
    Sketcher.Constraint("PointOnObject", 0, 2, -1),
    Sketcher.Constraint("DistanceX", 1, 1, 1, 2, Q("6.5 mm")),
    Sketcher.Constraint("DistanceY", 0, 2, 0, 1, Q("2.5 mm")),
    Sketcher.Constraint("DistanceX", 0, 2, -1, 1, Q("10.2 mm")),
])
sketch10.setExpression("Constraints[9]", "Params.sketch10_width")
sketch10.setExpression("Constraints[10]", "Params.sketch10_height")
pocket7 = body.newObject("PartDesign::Pocket", "Pocket006")
pocket7.Profile = sketch10
pocket7.setExpression("Length", "Params.pocket7_length")

# Sketch on YZ plane
sketch11 = body.newObject("Sketcher::SketchObject", "Sketch010")
sketch11.AttachmentSupport = (doc.getObject("YZ_Plane"), [""])
sketch11.MapMode = "FlatFace"
sketch11.AttachmentOffset = App.Placement(V(0, 0, -13.9), App.Rotation())
add_polygon(sketch11, [(10.6, 0), (4, 0), (4, 2.5), (10.6, 2.5)])  # lines 0-3
add_polygon(sketch11, [(22, 0), (18, 0), (18, 2), (22, 2)])  # lines 4-7
sketch11.addConstraint([
    Sketcher.Constraint("Horizontal", 0),
    Sketcher.Constraint("Vertical", 1),
    Sketcher.Constraint("Horizontal", 2),
    Sketcher.Constraint("Vertical", 3),
    Sketcher.Constraint("Horizontal", 4),
    Sketcher.Constraint("Vertical", 5),
    Sketcher.Constraint("Horizontal", 6),
    Sketcher.Constraint("Vertical", 7),
    Sketcher.Constraint("PointOnObject", 0, 2, -1),
    Sketcher.Constraint("PointOnObject", 4, 2, -1),
    Sketcher.Constraint("DistanceX", 4, 2, 4, 1, Q("4 mm")),
    Sketcher.Constraint("DistanceY", 5, 1, 5, 2, Q("2 mm")),
    Sketcher.Constraint("DistanceX", 0, 2, 0, 1, Q("6.6 mm")),
    Sketcher.Constraint("DistanceY", 1, 1, 1, 2, Q("2.5 mm")),
    Sketcher.Constraint("DistanceX", -1, 1, 0, 2, Q("4 mm")),
    Sketcher.Constraint("DistanceX", -1, 1, 4, 2, Q("18 mm")),
])
sketch11.setExpression("Constraints[18]", "Params.sketch11_width")
sketch11.setExpression("Constraints[19]", "Params.sketch11_height")
sketch11.setExpression("Constraints[20]", "Params.sketch11_width2")
sketch11.setExpression("Constraints[21]", "Params.sketch11_height2")
pocket8 = body.newObject("PartDesign::Pocket", "Pocket007")
pocket8.Profile = sketch11
pocket8.setExpression("Length", "Params.pocket8_length")
pocket8.Reversed = True

# Sketch on XY plane
sketch12 = body.newObject("Sketcher::SketchObject", "Sketch011")
sketch12.AttachmentSupport = (doc.getObject("XY_Plane"), [""])
sketch12.MapMode = "FlatFace"
sketch12.AttachmentOffset = App.Placement(V(0, 0, 4.2), App.Rotation())
sketch12.addGeometry([
    Part.Circle(V(-1.1, 23.5, 0), V(0, 0, 1), 0.7),  # 0
    Part.Circle(V(-1.1, 12.8, 0), V(0, 0, 1), 0.7),  # 1
    Part.Circle(V(-1.1, 1.8, 0), V(0, 0, 1), 0.7),  # 2
    Part.Circle(V(-12.8, 1.8, 0), V(0, 0, 1), 0.7),  # 3
    Part.Circle(V(-12.8, 12.8, 0), V(0, 0, 1), 0.7),  # 4
    Part.Circle(V(-12.8, 23.5, 0), V(0, 0, 1), 0.7),  # 5
], False)
sketch12.addConstraint([
    Sketcher.Constraint("Equal", 0, 1),
    Sketcher.Constraint("Equal", 1, 2),
    Sketcher.Constraint("Equal", 2, 3),
    Sketcher.Constraint("Equal", 3, 4),
    Sketcher.Constraint("Equal", 4, 5),
    Sketcher.Constraint("Horizontal", 2, 3, 3, 3),
    Sketcher.Constraint("Horizontal", 1, 3, 4, 3),
    Sketcher.Constraint("Horizontal", 0, 3, 5, 3),
    Sketcher.Constraint("Vertical", 0, 3, 1, 3),
    Sketcher.Constraint("Vertical", 1, 3, 2, 3),
    Sketcher.Constraint("Vertical", 3, 3, 4, 3),
    Sketcher.Constraint("Vertical", 4, 3, 5, 3),
    Sketcher.Constraint("Diameter", 0, Q("1.3 mm")),
    Sketcher.Constraint("DistanceY", -1, 1, 1, 3, Q("12.75 mm")),
    Sketcher.Constraint("DistanceY", 2, 3, 0, 3, Q("21.76691 mm")),
    Sketcher.Constraint("DistanceX", 0, 3, -1, 1, Q("1.112348 mm")),
    Sketcher.Constraint("DistanceY", -1, 1, 0, 3, Q("23.533455 mm")),
    Sketcher.Constraint("DistanceX", 3, 3, -1, 1, Q("12.787652 mm")),
])
sketch12.setExpression("Constraints[12]", "Params.sketch12_diameter")
pad4 = body.newObject("PartDesign::Pad", "Pad003")
pad4.Profile = sketch12
pad4.setExpression("Length", "Params.pad4_length")
pad4.Reversed = True

# Sketch on XY plane
sketch13 = body.newObject("Sketcher::SketchObject", "Sketch012")
sketch13.AttachmentSupport = (doc.getObject("XY_Plane"), [""])
sketch13.MapMode = "FlatFace"
sketch13.addGeometry([
    Part.Circle(V(-1.1, 12.8, 0), V(0, 0, 1), 0.6),  # 0
    Part.Circle(V(-1.1, 23.5, 0), V(0, 0, 1), 0.6),  # 1
    Part.Circle(V(-1.1, 1.8, 0), V(0, 0, 1), 0.6),  # 2
    Part.Circle(V(-12.8, 1.8, 0), V(0, 0, 1), 0.6),  # 3
    Part.Circle(V(-12.8, 12.8, 0), V(0, 0, 1), 0.6),  # 4
    Part.Circle(V(-12.8, 23.5, 0), V(0, 0, 1), 0.6),  # 5
], False)
sketch13.addConstraint([
    Sketcher.Constraint("Equal", 0, 1),
    Sketcher.Constraint("Equal", 1, 2),
    Sketcher.Constraint("Equal", 2, 3),
    Sketcher.Constraint("Equal", 3, 4),
    Sketcher.Constraint("Equal", 4, 5),
    Sketcher.Constraint("Horizontal", 2, 3, 3, 3),
    Sketcher.Constraint("Horizontal", 0, 3, 4, 3),
    Sketcher.Constraint("Horizontal", 1, 3, 5, 3),
    Sketcher.Constraint("Vertical", 0, 3, 1, 3),
    Sketcher.Constraint("Vertical", 1, 3, 2, 3),
    Sketcher.Constraint("Vertical", 3, 3, 4, 3),
    Sketcher.Constraint("Vertical", 4, 3, 5, 3),
    Sketcher.Constraint("Diameter", 0, Q("1.1 mm")),
    Sketcher.Constraint("DistanceY", -1, 1, 0, 3, Q("12.75 mm")),
    Sketcher.Constraint("DistanceY", 2, 3, 1, 3, Q("21.76691 mm")),
    Sketcher.Constraint("DistanceX", 0, 3, -1, 1, Q("1.112348 mm")),
    Sketcher.Constraint("DistanceY", -1, 1, 1, 3, Q("23.533455 mm")),
    Sketcher.Constraint("DistanceX", 3, 3, -1, 1, Q("12.787652 mm")),
])
sketch13.setExpression("Constraints[12]", "Params.sketch13_diameter")
pad5 = body.newObject("PartDesign::Pad", "Pad004")
pad5.Profile = sketch13
pad5.setExpression("Length", "Params.pad5_length")
pad5.Reversed = True

doc.recompute()
